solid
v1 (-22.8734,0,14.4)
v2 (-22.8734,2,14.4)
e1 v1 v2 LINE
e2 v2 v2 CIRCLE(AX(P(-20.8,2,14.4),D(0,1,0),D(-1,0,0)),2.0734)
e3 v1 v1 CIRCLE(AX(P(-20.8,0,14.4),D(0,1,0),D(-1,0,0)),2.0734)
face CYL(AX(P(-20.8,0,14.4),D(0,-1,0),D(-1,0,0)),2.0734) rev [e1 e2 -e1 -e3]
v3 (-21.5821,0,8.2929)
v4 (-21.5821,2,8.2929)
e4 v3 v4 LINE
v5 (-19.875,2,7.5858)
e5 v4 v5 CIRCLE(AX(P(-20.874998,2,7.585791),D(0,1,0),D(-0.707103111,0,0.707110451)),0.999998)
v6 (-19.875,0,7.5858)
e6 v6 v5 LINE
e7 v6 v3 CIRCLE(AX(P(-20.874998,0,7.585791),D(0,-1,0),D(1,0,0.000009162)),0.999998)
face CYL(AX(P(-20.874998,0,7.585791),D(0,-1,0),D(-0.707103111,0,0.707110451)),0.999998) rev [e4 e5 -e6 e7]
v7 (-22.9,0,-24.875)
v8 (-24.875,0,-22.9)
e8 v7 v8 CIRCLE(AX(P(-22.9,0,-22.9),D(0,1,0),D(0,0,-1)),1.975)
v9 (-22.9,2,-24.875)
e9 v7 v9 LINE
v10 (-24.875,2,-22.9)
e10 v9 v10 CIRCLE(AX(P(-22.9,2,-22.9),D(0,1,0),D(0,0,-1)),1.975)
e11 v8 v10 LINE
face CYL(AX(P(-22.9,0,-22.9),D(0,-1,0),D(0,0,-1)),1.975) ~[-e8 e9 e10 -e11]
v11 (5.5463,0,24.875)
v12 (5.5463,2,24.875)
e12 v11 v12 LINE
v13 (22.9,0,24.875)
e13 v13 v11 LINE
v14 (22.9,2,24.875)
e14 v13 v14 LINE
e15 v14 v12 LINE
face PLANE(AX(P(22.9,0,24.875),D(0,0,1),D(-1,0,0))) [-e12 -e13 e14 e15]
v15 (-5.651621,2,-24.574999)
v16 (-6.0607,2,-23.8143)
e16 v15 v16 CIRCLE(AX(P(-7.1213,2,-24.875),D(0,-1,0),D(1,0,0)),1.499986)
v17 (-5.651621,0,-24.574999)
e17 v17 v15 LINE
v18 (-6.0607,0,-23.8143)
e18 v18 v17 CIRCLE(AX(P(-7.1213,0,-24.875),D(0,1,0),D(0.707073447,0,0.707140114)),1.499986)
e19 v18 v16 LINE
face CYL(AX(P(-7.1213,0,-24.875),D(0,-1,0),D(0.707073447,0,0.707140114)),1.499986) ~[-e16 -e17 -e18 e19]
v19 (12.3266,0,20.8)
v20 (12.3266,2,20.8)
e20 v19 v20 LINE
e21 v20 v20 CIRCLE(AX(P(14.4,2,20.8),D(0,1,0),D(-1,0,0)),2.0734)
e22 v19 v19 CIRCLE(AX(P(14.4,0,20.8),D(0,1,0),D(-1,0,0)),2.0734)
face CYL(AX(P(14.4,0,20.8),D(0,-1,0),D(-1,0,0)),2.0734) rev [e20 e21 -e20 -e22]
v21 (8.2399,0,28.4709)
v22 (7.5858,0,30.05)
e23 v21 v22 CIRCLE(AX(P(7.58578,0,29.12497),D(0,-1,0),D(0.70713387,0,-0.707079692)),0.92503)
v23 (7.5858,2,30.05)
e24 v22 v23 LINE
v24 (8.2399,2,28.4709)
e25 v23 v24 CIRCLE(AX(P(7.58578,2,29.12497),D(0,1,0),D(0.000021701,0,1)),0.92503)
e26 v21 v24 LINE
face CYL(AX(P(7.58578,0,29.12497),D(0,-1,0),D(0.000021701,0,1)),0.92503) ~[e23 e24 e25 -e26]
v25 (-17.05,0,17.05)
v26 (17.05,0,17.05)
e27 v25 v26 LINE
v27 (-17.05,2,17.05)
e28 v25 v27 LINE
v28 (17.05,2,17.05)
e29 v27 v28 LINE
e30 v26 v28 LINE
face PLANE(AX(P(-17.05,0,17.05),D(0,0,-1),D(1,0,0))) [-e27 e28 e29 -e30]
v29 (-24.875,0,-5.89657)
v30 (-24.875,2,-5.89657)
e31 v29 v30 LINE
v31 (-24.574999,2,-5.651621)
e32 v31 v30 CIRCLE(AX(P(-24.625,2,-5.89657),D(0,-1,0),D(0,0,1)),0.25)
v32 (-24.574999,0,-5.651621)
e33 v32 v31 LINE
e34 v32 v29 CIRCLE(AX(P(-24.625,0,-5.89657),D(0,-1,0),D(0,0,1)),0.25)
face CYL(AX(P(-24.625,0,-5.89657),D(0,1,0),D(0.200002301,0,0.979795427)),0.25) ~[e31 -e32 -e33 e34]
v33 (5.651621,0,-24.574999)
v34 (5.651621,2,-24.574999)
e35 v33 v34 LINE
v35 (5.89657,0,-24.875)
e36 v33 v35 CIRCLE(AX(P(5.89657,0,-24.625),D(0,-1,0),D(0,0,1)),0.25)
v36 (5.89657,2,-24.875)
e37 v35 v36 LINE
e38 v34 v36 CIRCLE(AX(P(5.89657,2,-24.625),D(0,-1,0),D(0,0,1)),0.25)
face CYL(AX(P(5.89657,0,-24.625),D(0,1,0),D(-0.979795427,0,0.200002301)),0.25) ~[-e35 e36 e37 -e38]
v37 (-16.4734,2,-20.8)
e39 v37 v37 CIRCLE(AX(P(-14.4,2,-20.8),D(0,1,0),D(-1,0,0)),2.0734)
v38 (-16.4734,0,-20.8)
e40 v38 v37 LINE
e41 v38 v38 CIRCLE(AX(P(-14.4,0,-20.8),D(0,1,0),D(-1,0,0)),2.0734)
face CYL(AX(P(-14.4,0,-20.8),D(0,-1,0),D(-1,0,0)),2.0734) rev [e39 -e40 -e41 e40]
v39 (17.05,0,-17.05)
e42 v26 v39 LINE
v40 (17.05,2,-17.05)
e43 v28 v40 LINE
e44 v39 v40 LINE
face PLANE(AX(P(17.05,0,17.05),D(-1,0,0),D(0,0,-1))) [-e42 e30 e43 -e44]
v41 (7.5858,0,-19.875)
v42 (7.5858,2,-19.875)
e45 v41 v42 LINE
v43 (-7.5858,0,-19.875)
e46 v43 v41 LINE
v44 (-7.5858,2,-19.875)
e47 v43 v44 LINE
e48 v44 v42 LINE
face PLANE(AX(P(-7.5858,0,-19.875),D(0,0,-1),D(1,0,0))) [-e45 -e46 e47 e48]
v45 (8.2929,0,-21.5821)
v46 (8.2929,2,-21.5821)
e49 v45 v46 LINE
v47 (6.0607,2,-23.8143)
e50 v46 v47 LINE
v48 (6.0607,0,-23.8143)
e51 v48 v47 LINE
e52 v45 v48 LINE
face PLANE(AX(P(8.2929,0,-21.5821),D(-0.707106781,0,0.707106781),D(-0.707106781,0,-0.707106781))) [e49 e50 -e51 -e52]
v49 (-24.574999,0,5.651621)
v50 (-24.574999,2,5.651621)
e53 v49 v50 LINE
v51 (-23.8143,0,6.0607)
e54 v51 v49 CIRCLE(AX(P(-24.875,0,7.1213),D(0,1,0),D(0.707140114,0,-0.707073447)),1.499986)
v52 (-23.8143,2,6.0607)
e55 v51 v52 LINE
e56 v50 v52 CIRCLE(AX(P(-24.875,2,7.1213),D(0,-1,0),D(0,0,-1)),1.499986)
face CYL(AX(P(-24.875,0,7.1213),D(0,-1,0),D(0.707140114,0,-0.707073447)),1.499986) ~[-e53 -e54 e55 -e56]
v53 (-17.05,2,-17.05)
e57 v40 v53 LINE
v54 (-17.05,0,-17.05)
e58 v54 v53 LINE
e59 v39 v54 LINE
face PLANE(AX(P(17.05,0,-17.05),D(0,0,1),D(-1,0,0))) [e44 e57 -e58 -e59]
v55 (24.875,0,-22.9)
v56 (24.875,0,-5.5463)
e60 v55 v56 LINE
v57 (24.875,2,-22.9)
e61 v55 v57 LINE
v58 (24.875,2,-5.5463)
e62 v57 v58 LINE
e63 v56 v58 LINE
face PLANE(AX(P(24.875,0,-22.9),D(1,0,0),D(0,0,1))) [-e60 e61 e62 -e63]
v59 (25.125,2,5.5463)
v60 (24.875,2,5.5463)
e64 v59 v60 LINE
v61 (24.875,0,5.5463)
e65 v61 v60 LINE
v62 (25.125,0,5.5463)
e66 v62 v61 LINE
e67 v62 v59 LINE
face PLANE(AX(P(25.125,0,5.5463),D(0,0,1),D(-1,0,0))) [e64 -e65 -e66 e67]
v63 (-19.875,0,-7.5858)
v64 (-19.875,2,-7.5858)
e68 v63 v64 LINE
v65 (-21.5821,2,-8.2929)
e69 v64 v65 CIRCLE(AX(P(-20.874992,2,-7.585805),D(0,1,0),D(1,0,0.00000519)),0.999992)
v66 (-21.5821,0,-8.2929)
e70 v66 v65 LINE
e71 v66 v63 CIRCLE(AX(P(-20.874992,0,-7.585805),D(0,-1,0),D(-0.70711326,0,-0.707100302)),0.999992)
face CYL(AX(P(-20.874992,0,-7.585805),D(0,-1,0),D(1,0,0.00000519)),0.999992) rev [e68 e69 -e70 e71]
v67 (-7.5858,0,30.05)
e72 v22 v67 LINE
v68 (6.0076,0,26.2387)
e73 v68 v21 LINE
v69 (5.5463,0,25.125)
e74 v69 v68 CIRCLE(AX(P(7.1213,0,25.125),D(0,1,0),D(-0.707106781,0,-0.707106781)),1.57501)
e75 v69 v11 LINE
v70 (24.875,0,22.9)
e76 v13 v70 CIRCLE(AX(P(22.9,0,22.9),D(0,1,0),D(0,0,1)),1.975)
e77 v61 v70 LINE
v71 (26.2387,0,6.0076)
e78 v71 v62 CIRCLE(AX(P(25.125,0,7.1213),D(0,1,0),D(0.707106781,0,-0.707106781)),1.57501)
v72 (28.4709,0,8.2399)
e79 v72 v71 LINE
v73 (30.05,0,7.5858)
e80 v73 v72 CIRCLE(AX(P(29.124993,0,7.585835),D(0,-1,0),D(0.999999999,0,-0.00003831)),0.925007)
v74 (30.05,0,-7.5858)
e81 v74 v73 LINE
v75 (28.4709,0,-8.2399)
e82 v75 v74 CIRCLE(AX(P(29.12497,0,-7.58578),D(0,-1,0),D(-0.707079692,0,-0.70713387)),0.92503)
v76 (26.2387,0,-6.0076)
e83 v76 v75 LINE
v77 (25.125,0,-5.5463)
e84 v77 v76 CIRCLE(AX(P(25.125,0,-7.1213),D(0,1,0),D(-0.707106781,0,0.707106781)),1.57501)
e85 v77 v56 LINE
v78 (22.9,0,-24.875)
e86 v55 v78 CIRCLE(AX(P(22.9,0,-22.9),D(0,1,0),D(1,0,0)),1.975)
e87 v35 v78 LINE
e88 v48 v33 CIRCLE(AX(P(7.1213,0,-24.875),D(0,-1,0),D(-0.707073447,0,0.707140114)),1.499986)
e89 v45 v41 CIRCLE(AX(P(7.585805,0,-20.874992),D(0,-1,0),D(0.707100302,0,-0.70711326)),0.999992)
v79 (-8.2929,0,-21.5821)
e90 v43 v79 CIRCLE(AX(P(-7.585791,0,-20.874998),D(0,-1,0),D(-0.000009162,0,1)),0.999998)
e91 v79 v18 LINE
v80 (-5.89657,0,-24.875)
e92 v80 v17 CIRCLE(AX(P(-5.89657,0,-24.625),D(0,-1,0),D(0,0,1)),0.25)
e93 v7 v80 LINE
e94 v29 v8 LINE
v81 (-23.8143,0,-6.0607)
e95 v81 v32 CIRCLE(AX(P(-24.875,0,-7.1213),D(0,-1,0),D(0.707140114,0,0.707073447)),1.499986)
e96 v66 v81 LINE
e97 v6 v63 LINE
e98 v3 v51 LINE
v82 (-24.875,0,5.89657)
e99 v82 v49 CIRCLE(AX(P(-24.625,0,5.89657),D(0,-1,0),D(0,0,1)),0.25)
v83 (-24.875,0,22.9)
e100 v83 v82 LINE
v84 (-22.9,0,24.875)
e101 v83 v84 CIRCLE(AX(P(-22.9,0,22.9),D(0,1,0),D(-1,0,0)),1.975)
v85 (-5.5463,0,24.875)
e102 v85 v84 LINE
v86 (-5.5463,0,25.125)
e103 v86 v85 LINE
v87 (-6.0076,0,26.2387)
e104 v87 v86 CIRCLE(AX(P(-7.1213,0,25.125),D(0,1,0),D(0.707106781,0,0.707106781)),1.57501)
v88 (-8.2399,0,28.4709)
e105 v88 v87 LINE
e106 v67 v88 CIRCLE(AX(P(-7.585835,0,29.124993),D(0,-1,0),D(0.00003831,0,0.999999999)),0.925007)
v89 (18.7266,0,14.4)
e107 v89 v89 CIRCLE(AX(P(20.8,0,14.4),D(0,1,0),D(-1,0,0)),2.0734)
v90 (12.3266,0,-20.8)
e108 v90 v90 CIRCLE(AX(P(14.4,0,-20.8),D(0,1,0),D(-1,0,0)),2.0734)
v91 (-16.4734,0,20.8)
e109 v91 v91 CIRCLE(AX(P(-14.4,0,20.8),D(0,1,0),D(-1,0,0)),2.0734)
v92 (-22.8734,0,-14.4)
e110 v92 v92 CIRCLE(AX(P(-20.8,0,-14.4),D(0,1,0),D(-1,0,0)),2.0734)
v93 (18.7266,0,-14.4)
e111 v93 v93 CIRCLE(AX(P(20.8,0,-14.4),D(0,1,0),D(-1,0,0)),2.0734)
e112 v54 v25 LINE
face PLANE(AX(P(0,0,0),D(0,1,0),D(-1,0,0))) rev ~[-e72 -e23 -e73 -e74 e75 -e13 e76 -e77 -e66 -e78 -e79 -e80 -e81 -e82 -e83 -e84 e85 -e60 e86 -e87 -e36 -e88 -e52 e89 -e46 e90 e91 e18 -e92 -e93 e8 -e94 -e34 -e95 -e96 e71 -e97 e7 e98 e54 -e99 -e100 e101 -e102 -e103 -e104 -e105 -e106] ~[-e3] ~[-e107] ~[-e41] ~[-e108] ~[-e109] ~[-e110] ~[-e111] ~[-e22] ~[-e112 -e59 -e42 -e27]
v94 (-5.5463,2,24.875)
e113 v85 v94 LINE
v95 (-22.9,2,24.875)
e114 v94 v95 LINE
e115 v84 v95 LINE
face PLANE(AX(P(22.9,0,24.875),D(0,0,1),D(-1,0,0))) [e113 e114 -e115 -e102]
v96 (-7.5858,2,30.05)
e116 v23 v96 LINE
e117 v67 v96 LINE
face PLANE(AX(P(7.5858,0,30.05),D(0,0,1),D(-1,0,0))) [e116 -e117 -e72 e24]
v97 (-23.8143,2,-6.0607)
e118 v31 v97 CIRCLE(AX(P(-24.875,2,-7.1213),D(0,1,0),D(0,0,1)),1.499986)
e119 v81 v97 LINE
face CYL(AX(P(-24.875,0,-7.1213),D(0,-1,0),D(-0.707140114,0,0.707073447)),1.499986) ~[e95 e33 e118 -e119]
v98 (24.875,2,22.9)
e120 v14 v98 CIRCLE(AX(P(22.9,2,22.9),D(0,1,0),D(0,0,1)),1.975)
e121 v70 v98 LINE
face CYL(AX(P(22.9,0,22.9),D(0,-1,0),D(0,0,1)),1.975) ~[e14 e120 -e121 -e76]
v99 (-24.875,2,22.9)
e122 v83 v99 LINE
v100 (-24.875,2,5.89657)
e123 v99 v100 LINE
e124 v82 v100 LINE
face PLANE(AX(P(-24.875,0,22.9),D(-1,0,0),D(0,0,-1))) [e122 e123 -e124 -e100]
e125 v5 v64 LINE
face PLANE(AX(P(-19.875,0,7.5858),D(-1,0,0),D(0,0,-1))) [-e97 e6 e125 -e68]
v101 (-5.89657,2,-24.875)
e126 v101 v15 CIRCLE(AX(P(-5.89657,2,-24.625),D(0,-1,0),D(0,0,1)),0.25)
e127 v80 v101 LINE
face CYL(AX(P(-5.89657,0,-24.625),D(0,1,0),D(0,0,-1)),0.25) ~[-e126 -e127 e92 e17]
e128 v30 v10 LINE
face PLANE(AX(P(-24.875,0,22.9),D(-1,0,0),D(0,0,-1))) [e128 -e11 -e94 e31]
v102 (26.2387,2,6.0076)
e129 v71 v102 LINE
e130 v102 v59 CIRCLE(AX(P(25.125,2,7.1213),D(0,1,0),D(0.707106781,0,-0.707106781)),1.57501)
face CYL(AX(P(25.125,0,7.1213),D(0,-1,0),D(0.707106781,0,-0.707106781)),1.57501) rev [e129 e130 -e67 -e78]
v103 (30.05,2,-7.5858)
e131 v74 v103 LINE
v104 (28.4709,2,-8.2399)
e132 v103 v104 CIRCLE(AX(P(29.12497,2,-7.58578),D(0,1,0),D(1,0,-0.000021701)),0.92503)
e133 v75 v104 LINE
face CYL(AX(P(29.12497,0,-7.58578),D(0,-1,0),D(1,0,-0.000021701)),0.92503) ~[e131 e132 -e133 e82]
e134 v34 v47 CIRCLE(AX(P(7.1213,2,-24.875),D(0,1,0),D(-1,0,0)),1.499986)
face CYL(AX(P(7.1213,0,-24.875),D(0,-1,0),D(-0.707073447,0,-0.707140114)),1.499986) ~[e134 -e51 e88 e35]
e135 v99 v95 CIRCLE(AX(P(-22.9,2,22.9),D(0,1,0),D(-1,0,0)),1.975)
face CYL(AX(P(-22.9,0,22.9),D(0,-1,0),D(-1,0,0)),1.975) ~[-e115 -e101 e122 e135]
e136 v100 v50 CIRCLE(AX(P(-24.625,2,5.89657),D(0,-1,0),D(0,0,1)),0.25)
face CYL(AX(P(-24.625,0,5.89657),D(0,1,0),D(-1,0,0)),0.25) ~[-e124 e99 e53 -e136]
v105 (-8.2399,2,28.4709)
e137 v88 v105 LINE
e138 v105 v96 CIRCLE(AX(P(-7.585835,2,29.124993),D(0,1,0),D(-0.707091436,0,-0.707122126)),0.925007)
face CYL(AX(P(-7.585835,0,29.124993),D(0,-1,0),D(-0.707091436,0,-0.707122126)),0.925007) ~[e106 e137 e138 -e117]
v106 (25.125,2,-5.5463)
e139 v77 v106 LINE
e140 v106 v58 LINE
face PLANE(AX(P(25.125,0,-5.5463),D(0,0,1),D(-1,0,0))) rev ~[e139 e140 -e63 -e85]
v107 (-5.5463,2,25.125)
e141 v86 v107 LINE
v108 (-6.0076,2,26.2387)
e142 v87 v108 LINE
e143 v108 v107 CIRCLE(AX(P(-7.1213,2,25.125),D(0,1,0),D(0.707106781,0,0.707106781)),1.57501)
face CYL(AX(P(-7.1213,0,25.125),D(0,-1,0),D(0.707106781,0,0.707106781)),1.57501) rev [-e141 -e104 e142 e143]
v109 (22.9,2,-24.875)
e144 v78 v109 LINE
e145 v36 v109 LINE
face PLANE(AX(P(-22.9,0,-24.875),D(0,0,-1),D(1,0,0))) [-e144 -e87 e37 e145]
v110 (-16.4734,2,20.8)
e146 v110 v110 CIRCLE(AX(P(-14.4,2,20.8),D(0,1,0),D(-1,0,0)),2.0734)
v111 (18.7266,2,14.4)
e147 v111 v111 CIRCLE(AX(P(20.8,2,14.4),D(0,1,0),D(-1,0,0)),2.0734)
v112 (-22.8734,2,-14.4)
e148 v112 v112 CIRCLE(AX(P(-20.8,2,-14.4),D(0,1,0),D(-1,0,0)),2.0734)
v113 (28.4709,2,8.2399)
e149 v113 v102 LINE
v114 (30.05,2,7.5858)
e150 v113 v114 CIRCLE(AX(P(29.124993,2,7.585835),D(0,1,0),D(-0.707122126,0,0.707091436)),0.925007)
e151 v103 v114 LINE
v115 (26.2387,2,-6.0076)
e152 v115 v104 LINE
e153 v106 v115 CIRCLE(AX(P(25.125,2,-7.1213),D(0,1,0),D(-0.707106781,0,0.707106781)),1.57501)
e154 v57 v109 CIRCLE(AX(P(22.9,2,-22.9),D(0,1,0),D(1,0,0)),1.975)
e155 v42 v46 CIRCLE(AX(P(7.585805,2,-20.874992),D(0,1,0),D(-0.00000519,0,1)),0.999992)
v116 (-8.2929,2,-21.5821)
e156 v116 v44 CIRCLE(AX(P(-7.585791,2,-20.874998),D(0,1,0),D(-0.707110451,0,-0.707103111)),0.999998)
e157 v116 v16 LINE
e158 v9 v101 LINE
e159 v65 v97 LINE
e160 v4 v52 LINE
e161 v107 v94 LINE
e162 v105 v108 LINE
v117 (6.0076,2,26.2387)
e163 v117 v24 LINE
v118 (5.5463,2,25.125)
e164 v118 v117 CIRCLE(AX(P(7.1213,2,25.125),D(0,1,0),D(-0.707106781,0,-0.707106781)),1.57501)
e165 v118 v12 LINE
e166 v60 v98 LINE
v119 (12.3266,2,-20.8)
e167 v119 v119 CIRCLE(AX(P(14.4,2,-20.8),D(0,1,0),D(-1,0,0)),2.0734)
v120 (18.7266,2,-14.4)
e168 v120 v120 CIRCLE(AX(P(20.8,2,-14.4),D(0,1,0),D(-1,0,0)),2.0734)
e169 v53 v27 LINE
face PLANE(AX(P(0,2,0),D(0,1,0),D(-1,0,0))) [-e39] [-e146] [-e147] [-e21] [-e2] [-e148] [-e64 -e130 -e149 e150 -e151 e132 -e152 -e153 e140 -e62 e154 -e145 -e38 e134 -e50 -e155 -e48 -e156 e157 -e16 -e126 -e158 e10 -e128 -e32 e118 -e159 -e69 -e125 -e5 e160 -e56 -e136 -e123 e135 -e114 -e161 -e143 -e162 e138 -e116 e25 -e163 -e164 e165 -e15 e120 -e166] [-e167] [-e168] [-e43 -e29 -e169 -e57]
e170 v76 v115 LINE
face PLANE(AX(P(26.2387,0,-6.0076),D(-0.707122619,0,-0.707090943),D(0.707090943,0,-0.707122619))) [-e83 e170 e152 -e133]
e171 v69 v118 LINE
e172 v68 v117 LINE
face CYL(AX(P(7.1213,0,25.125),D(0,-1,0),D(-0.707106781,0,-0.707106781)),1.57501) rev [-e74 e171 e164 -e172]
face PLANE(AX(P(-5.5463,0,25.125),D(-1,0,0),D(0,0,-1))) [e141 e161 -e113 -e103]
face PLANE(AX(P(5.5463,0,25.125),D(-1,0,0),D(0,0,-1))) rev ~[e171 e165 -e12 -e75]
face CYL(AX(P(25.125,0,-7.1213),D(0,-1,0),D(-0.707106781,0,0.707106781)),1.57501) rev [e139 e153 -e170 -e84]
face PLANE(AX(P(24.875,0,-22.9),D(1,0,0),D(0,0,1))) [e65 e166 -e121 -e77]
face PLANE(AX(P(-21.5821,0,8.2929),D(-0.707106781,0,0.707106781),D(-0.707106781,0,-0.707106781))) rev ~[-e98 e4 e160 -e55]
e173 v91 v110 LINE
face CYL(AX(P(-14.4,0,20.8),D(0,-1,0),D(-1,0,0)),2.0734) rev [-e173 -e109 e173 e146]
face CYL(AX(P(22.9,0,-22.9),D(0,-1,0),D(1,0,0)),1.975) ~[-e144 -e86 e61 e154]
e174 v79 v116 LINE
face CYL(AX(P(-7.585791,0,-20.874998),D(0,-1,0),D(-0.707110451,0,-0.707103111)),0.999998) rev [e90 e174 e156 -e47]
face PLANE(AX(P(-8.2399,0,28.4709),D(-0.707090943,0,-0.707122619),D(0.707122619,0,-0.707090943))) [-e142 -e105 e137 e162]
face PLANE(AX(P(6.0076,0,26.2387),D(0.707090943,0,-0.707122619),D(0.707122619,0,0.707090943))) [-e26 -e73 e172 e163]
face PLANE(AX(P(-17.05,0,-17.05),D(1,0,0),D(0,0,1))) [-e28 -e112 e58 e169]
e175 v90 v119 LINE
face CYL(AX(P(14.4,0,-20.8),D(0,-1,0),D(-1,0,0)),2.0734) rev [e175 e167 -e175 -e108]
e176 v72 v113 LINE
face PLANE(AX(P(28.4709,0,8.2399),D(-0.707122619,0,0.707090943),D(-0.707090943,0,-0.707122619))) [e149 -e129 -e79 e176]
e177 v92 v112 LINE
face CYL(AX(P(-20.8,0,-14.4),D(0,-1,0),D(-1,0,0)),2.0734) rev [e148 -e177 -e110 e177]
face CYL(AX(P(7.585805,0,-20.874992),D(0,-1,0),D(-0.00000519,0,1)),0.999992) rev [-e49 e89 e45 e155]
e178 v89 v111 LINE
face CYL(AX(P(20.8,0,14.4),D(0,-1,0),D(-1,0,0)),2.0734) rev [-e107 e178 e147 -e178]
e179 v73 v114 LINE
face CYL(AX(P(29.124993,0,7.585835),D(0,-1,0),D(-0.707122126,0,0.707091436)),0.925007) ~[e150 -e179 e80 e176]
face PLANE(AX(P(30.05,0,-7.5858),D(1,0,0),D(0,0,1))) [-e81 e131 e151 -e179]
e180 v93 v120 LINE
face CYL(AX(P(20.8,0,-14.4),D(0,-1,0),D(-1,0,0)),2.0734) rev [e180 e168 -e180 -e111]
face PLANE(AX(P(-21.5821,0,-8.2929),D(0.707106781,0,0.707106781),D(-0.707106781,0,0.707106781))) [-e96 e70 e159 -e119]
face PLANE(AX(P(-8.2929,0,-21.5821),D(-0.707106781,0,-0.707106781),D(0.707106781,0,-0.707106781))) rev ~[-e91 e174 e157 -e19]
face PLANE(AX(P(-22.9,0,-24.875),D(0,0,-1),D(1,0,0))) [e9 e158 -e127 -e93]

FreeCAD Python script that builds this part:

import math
import FreeCAD as App
import Part
import Sketcher

V = App.Vector
Q = App.Units.Quantity


def edges_at(feature, points):
    """Names of the edges that pass closest to the given points."""
    edges = feature.Shape.Edges
    near = lambda p: min(range(len(edges)), key=lambda i: edges[i].distToShape(Part.Vertex(*p))[0])
    return sorted({f"Edge{near(p) + 1}" for p in points})


def add_polygon(sketch, points):
    """Adds a closed chain of lines whose ends are joined by coincident constraints."""
    first, n = sketch.GeometryCount, len(points)
    for a, b in zip(points, points[1:] + points[:1]):
        sketch.addGeometry(Part.LineSegment(App.Vector(*a, 0), App.Vector(*b, 0)), False)
    for i in range(n):
        sketch.addConstraint(Sketcher.Constraint("Coincident", first + i, 2, first + (i + 1) % n, 1))

doc = App.newDocument("Part")
body = doc.addObject("PartDesign::Body", "Body")

sketch1 = body.newObject("Sketcher::SketchObject", "Sketch")
sketch1.AttachmentSupport = (doc.getObject("XZ_Plane"), [""])
sketch1.MapMode = "FlatFace"
sketch1.addGeometry(Part.LineSegment(V(-22.9, 24.875, 0), V(22.9, 24.875, 0)), False)
sketch1.addGeometry(Part.ArcOfCircle(Part.Circle(V(22.9, 22.9, 0), V(0, 0, 1), 1.975), math.radians(0), math.radians(90)), False)
sketch1.addGeometry(Part.LineSegment(V(24.875, 22.9, 0), V(24.875, -22.9, 0)), False)
sketch1.addGeometry(Part.ArcOfCircle(Part.Circle(V(22.9, -22.9, 0), V(0, 0, 1), 1.975), math.radians(-90), math.radians(0)), False)
sketch1.addGeometry(Part.LineSegment(V(22.9, -24.875, 0), V(-22.9, -24.875, 0)), False)
sketch1.addGeometry(Part.ArcOfCircle(Part.Circle(V(-22.9, -22.9, 0), V(0, 0, 1), 1.975), math.radians(180), math.radians(270)), False)
sketch1.addGeometry(Part.LineSegment(V(-24.875, -22.9, 0), V(-24.875, 22.9, 0)), False)
sketch1.addGeometry(Part.ArcOfCircle(Part.Circle(V(-22.9, 22.9, 0), V(0, 0, 1), 1.975), math.radians(90), math.radians(180)), False)
sketch1.addGeometry(Part.Circle(V(14.4, -20.8, 0), V(0, 0, 1), 2.0734), False)
sketch1.addGeometry(Part.Circle(V(20.8, -14.4, 0), V(0, 0, 1), 2.0734), False)
add_polygon(sketch1, [(17.05, -17.05), (17.05, 17.05), (-17.05, 17.05), (-17.05, -17.05)])
sketch1.addGeometry(Part.Circle(V(-14.4, -20.8, 0), V(0, 0, 1), 2.0734), False)
sketch1.addGeometry(Part.Circle(V(-20.8, -14.4, 0), V(0, 0, 1), 2.0734), False)
sketch1.addGeometry(Part.Circle(V(20.8, 14.4, 0), V(0, 0, 1), 2.0734), False)
sketch1.addGeometry(Part.Circle(V(14.4, 20.8, 0), V(0, 0, 1), 2.0734), False)
sketch1.addGeometry(Part.Circle(V(-20.8, 14.4, 0), V(0, 0, 1), 2.0734), False)
sketch1.addGeometry(Part.Circle(V(-14.4, 20.8, 0), V(0, 0, 1), 2.0734), False)
sketch1.addConstraint([
    Sketcher.Constraint("Tangent", 0, 2, 1, 2),
    Sketcher.Constraint("Tangent", 1, 1, 2, 1),
    Sketcher.Constraint("Tangent", 2, 2, 3, 2),
    Sketcher.Constraint("Tangent", 3, 1, 4, 1),
    Sketcher.Constraint("Tangent", 4, 2, 5, 2),
    Sketcher.Constraint("Tangent", 5, 1, 6, 1),
    Sketcher.Constraint("Tangent", 6, 2, 7, 2),
    Sketcher.Constraint("Tangent", 7, 1, 0, 1),
    Sketcher.Constraint("Horizontal", 0),
    Sketcher.Constraint("Vertical", 2),
    Sketcher.Constraint("Horizontal", 4),
    Sketcher.Constraint("Vertical", 6),
    Sketcher.Constraint("Vertical", 10),
    Sketcher.Constraint("Horizontal", 11),
    Sketcher.Constraint("Vertical", 12),
    Sketcher.Constraint("Horizontal", 13),
    Sketcher.Constraint("Equal", 1, 3),
    Sketcher.Constraint("Equal", 3, 5),
    Sketcher.Constraint("Equal", 5, 7),
    Sketcher.Constraint("Equal", 8, 9),
    Sketcher.Constraint("Equal", 9, 14),
    Sketcher.Constraint("Equal", 14, 15),
    Sketcher.Constraint("Equal", 15, 16),
    Sketcher.Constraint("Equal", 16, 17),
    Sketcher.Constraint("Equal", 17, 18),
    Sketcher.Constraint("Equal", 18, 19),
    Sketcher.Constraint("Symmetric", 1, 3, 5, 3, -1, 1),
    Sketcher.Constraint("Symmetric", 15, 3, 16, 3, -1, 1),
    Sketcher.Constraint("Symmetric", 14, 3, 17, 3, -1, 1),
    Sketcher.Constraint("Symmetric", 9, 3, 18, 3, -1, 1),
    Sketcher.Constraint("Symmetric", 8, 3, 19, 3, -1, 1),
    Sketcher.Constraint("Symmetric", 10, 2, 12, 2, -1, 1),
    Sketcher.Constraint("Symmetric", 8, 3, 14, 3, -2),
    Sketcher.Constraint("Symmetric", 9, 3, 15, 3, -2),
    Sketcher.Constraint("Equal", 4, 2),
    Sketcher.Constraint("Equal", 13, 10),
    Sketcher.Constraint("DistanceX", 0, 1, 0, 2, Q("45.8 mm")),
    Sketcher.Constraint("DistanceX", 11, 2, 11, 1, Q("34.1 mm")),
    Sketcher.Constraint("Radius", 1, Q("1.975 mm")),
    Sketcher.Constraint("Diameter", 8, Q("4.1468 mm")),
    Sketcher.Constraint("DistanceX", -1, 1, 8, 3, Q("14.4 mm")),
    Sketcher.Constraint("DistanceY", 8, 3, -1, 1, Q("20.8 mm")),
    Sketcher.Constraint("DistanceX", -1, 1, 9, 3, Q("20.8 mm")),
    Sketcher.Constraint("DistanceY", 9, 3, -1, 1, Q("14.4 mm")),
])
pad1 = body.newObject("PartDesign::Pad", "Pad")
pad1.Profile = sketch1
pad1.Length = 2
pad1.Reversed = True

sketch2 = body.newObject("Sketcher::SketchObject", "Sketch001")
sketch2.AttachmentSupport = (doc.getObject("XZ_Plane"), [""])
sketch2.MapMode = "FlatFace"
sketch2.addGeometry([
    Part.LineSegment(V(25.125, -5.5463, 0), V(24.875, -5.5463, 0)),
    Part.LineSegment(V(24.875, -5.5463, 0), V(24.875, 5.5463, 0)),
    Part.LineSegment(V(24.875, 5.5463, 0), V(25.125, 5.5463, 0)),
    Part.ArcOfCircle(Part.Circle(V(25.125, 7.1213, 0), V(0, 0, 1), 1.57501), math.radians(-90), math.radians(-45)),
    Part.LineSegment(V(26.2387, 6.0076, 0), V(28.4709, 8.2399, 0)),
    Part.ArcOfCircle(Part.Circle(V(29.125, 7.5858, 0), V(0, 0, 1), 0.925037), math.radians(0), math.radians(135)),
    Part.LineSegment(V(30.05, 7.5858, 0), V(30.05, -7.5858, 0)),
    Part.ArcOfCircle(Part.Circle(V(29.125, -7.5858, 0), V(0, 0, 1), 0.925), math.radians(-135), math.radians(0)),
    Part.LineSegment(V(28.4709, -8.2399, 0), V(26.2387, -6.0076, 0)),
    Part.ArcOfCircle(Part.Circle(V(25.125, -7.1213, 0), V(0, 0, 1), 1.57501), math.radians(45), math.radians(90)),
    Part.LineSegment(V(5.5463, 25.125, 0), V(5.5463, 24.875, 0)),
    Part.LineSegment(V(5.5463, 24.875, 0), V(-5.5463, 24.875, 0)),
    Part.LineSegment(V(-5.5463, 24.875, 0), V(-5.5463, 25.125, 0)),
    Part.ArcOfCircle(Part.Circle(V(-7.1213, 25.125, 0), V(0, 0, 1), 1.57501), math.radians(0), math.radians(45)),
    Part.LineSegment(V(-6.0076, 26.2387, 0), V(-8.2399, 28.4709, 0)),
    Part.ArcOfCircle(Part.Circle(V(-7.5858, 29.125, 0), V(0, 0, 1), 0.925037), math.radians(90), math.radians(225)),
    Part.LineSegment(V(-7.5858, 30.05, 0), V(7.5858, 30.05, 0)),
    Part.ArcOfCircle(Part.Circle(V(7.5858, 29.125, 0), V(0, 0, 1), 0.925), math.radians(-45), math.radians(90)),
    Part.LineSegment(V(8.2399, 28.4709, 0), V(6.0076, 26.2387, 0)),
    Part.ArcOfCircle(Part.Circle(V(7.1213, 25.125, 0), V(0, 0, 1), 1.57501), math.radians(135), math.radians(180)),
], False)
sketch2.addConstraint([
    Sketcher.Constraint("Coincident", 0, 2, 1, 1),
    Sketcher.Constraint("Coincident", 1, 2, 2, 1),
    Sketcher.Constraint("Tangent", 2, 2, 3, 1),
    Sketcher.Constraint("Tangent", 3, 2, 4, 1),
    Sketcher.Constraint("Tangent", 4, 2, 5, 2),
    Sketcher.Constraint("Tangent", 5, 1, 6, 1),
    Sketcher.Constraint("Tangent", 6, 2, 7, 2),
    Sketcher.Constraint("Tangent", 7, 1, 8, 1),
    Sketcher.Constraint("Tangent", 8, 2, 9, 1),
    Sketcher.Constraint("Tangent", 9, 2, 0, 1),
    Sketcher.Constraint("Coincident", 10, 2, 11, 1),
    Sketcher.Constraint("Coincident", 11, 2, 12, 1),
    Sketcher.Constraint("Tangent", 12, 2, 13, 1),
    Sketcher.Constraint("Tangent", 13, 2, 14, 1),
    Sketcher.Constraint("Tangent", 14, 2, 15, 2),
    Sketcher.Constraint("Tangent", 15, 1, 16, 1),
    Sketcher.Constraint("Tangent", 16, 2, 17, 2),
    Sketcher.Constraint("Tangent", 17, 1, 18, 1),
    Sketcher.Constraint("Tangent", 18, 2, 19, 1),
    Sketcher.Constraint("Tangent", 19, 2, 10, 1),
    Sketcher.Constraint("Horizontal", 0),
    Sketcher.Constraint("Vertical", 1),
    Sketcher.Constraint("Horizontal", 2),
    Sketcher.Constraint("Vertical", 6),
    Sketcher.Constraint("Vertical", 10),
    Sketcher.Constraint("Horizontal", 11),
    Sketcher.Constraint("Vertical", 12),
    Sketcher.Constraint("Horizontal", 16),
    Sketcher.Constraint("Equal", 5, 7),
    Sketcher.Constraint("Equal", 3, 9),
    Sketcher.Constraint("Equal", 9, 13),
    Sketcher.Constraint("Equal", 7, 15),
    Sketcher.Constraint("Equal", 15, 17),
    Sketcher.Constraint("Equal", 13, 19),
    Sketcher.Constraint("Symmetric", 13, 3, 19, 3, -2),
    Sketcher.Constraint("Symmetric", 3, 3, 9, 3, -1),
    Sketcher.Constraint("Perpendicular", 4, 8),
    Sketcher.Constraint("Parallel", 8, 14),
    Sketcher.Constraint("Perpendicular", 14, 18),
    Sketcher.Constraint("Horizontal", 14, 2, 17, 1),
    Sketcher.Constraint("Equal", 11, 1),
    Sketcher.Constraint("Equal", 16, 6),
    Sketcher.Constraint("Equal", 2, 10),
    Sketcher.Constraint("DistanceX", 0, 2, 0, 1, Q("0.25 mm")),
    Sketcher.Constraint("DistanceX", 16, 1, 16, 2, Q("15.1716 mm")),
    Sketcher.Constraint("Radius", 3, Q("1.575 mm")),
    Sketcher.Constraint("Radius", 5, Q("0.925 mm")),
    Sketcher.Constraint("DistanceX", 3, 3, 5, 3, Q("4 mm")),
    Sketcher.Constraint("DistanceX", -1, 1, 5, 1, Q("30.05 mm")),
    Sketcher.Constraint("DistanceY", -1, 1, 15, 1, Q("30.05 mm")),
])
pad2 = body.newObject("PartDesign::Pad", "Pad001")
pad2.Profile = sketch2
pad2.Length = 2
pad2.Reversed = True

sketch3 = body.newObject("Sketcher::SketchObject", "Sketch002")
sketch3.AttachmentSupport = (doc.getObject("XZ_Plane"), [""])
sketch3.MapMode = "FlatFace"
sketch3.addGeometry([
    Part.LineSegment(V(5.6213, -24.875, 0), V(-5.6213, -24.875, 0)),
    Part.ArcOfCircle(Part.Circle(V(-7.1213, -24.875, 0), V(0, 0, 1), 1.499986), math.radians(0), math.radians(45.002701)),
    Part.LineSegment(V(-6.0607, -23.8143, 0), V(-8.2929, -21.5821, 0)),
    Part.ArcOfCircle(Part.Circle(V(-7.5858, -20.875, 0), V(0, 0, 1), 0.99999), math.radians(90), math.radians(225)),
    Part.LineSegment(V(-7.5858, -19.875, 0), V(7.5858, -19.875, 0)),
    Part.ArcOfCircle(Part.Circle(V(7.5858, -20.875, 0), V(0, 0, 1), 1), math.radians(-45), math.radians(90)),
    Part.LineSegment(V(8.2929, -21.5821, 0), V(6.0607, -23.8143, 0)),
    Part.ArcOfCircle(Part.Circle(V(7.1213, -24.875, 0), V(0, 0, 1), 1.499986), math.radians(134.997299), math.radians(180)),
    Part.LineSegment(V(-24.875, -5.6213, 0), V(-24.875, 5.6213, 0)),
    Part.ArcOfCircle(Part.Circle(V(-24.875, 7.1213, 0), V(0, 0, 1), 1.499986), math.radians(-90), math.radians(-44.997299)),
    Part.LineSegment(V(-23.8143, 6.0607, 0), V(-21.5821, 8.2929, 0)),
    Part.ArcOfCircle(Part.Circle(V(-20.875, 7.5858, 0), V(0, 0, 1), 0.99999), math.radians(0), math.radians(135)),
    Part.LineSegment(V(-19.875, 7.5858, 0), V(-19.875, -7.5858, 0)),
    Part.ArcOfCircle(Part.Circle(V(-20.875, -7.5858, 0), V(0, 0, 1), 1), math.radians(-135), math.radians(0)),
    Part.LineSegment(V(-21.5821, -8.2929, 0), V(-23.8143, -6.0607, 0)),
    Part.ArcOfCircle(Part.Circle(V(-24.875, -7.1213, 0), V(0, 0, 1), 1.499986), math.radians(44.997299), math.radians(90)),
], False)
sketch3.addConstraint([
    Sketcher.Constraint("Coincident", 0, 2, 1, 1),
    Sketcher.Constraint("Tangent", 1, 2, 2, 1),
    Sketcher.Constraint("Tangent", 2, 2, 3, 2),
    Sketcher.Constraint("Tangent", 3, 1, 4, 1),
    Sketcher.Constraint("Tangent", 4, 2, 5, 2),
    Sketcher.Constraint("Tangent", 5, 1, 6, 1),
    Sketcher.Constraint("Tangent", 6, 2, 7, 1),
    Sketcher.Constraint("Coincident", 7, 2, 0, 1),
    Sketcher.Constraint("Coincident", 8, 2, 9, 1),
    Sketcher.Constraint("Tangent", 9, 2, 10, 1),
    Sketcher.Constraint("Tangent", 10, 2, 11, 2),
    Sketcher.Constraint("Tangent", 11, 1, 12, 1),
    Sketcher.Constraint("Tangent", 12, 2, 13, 2),
    Sketcher.Constraint("Tangent", 13, 1, 14, 1),
    Sketcher.Constraint("Tangent", 14, 2, 15, 1),
    Sketcher.Constraint("Coincident", 15, 2, 8, 1),
    Sketcher.Constraint("Horizontal", 0),
    Sketcher.Constraint("Horizontal", 4),
    Sketcher.Constraint("Vertical", 8),
    Sketcher.Constraint("Vertical", 12),
    Sketcher.Constraint("Equal", 3, 5),
    Sketcher.Constraint("Equal", 1, 7),
    Sketcher.Constraint("Equal", 7, 9),
    Sketcher.Constraint("Equal", 5, 11),
    Sketcher.Constraint("Equal", 11, 13),
    Sketcher.Constraint("Equal", 9, 15),
    Sketcher.Constraint("Symmetric", 1, 3, 7, 3, -2),
    Sketcher.Constraint("Symmetric", 9, 3, 15, 3, -1),
    Sketcher.Constraint("Perpendicular", 2, 6),
    Sketcher.Constraint("Parallel", 6, 10),
    Sketcher.Constraint("Perpendicular", 10, 14),
    Sketcher.Constraint("Horizontal", 7, 3, 0, 2),
    Sketcher.Constraint("Horizontal", 2, 2, 5, 1),
    Sketcher.Constraint("Vertical", 15, 3, 8, 2),
    Sketcher.Constraint("Equal", 0, 8),
    Sketcher.Constraint("Equal", 4, 12),
    Sketcher.Constraint("Radius", 3, Q("1 mm")),
    Sketcher.Constraint("Radius", 1, Q("1.5 mm")),
    Sketcher.Constraint("DistanceX", 4, 1, 4, 2, Q("15.1716 mm")),
    Sketcher.Constraint("DistanceY", 1, 3, 3, 3, Q("4 mm")),
    Sketcher.Constraint("DistanceY", 1, 3, -1, 1, Q("24.875 mm")),
    Sketcher.Constraint("DistanceX", 9, 3, -1, 1, Q("24.875 mm")),
])
pocket1 = body.newObject("PartDesign::Pocket", "Pocket")
pocket1.Profile = sketch3
pocket1.Length = 2
doc.recompute()

fillet = body.newObject("PartDesign::Fillet", "Fillet")
fillet.Base = (pocket1, edges_at(pocket1, [
    (-24.875, 1, -5.621),
    (-24.875, 1, 5.621),
    (5.621, 1, -24.875),
    (-5.621, 1, -24.875),
]))
fillet.Radius = 0.25

doc.recompute()
